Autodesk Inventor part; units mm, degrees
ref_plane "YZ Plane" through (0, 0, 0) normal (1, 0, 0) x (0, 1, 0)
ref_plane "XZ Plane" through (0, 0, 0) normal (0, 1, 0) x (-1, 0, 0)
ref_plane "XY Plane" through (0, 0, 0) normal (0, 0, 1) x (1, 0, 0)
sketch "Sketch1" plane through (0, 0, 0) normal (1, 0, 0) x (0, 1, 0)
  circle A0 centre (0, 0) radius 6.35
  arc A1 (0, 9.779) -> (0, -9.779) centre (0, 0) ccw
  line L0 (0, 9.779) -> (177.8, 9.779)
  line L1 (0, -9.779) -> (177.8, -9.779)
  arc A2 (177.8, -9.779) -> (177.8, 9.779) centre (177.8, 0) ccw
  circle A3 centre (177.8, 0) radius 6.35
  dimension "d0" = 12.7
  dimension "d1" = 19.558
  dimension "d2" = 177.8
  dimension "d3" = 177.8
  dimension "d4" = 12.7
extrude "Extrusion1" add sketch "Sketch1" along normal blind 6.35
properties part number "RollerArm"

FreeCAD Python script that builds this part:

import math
import FreeCAD as App
import Part
import Sketcher

V = App.Vector
Q = App.Units.Quantity

doc = App.newDocument("Part")
params = doc.addObject("Spreadsheet::Sheet", "Params")
for row, (alias, value) in enumerate([
    ("sketch1_diameter", "0.5 in"),
    ("sketch1_width", "7 in"),
    ("sketch1_radius", "0.385 in"),
    ("pad1_length", "0.25 in"),
], start=1):
    params.set(f"A{row}", alias)
    params.set(f"B{row}", "=" + value)
    params.setAlias(f"B{row}", alias)

body = doc.addObject("PartDesign::Body", "Body")

sketch1 = body.newObject("Sketcher::SketchObject", "Sketch")
sketch1.AttachmentSupport = (doc.getObject("YZ_Plane"), [""])
sketch1.MapMode = "FlatFace"
sketch1.addGeometry(Part.LineSegment(V(178, 10, 0), V(0, 10, 0)), False)
sketch1.addGeometry(Part.ArcOfCircle(Part.Circle(V(0, 0, 0), V(0, 0, 1), 10), math.radians(90), math.radians(270)), False)
sketch1.addGeometry(Part.LineSegment(V(0, -10, 0), V(178, -10, 0)), False)
sketch1.addGeometry(Part.ArcOfCircle(Part.Circle(V(178, 0, 0), V(0, 0, 1), 10), math.radians(-90), math.radians(90)), False)
sketch1.addGeometry(Part.Circle(V(0, 0, 0), V(0, 0, 1), 6), False)
sketch1.addGeometry(Part.Circle(V(178, 0, 0), V(0, 0, 1), 6), False)
sketch1.addConstraint(Sketcher.Constraint("Tangent", 0, 2, 1, 1))
sketch1.addConstraint(Sketcher.Constraint("Tangent", 1, 2, 2, 1))
sketch1.addConstraint(Sketcher.Constraint("Tangent", 2, 2, 3, 1))
sketch1.addConstraint(Sketcher.Constraint("Tangent", 3, 2, 0, 1))
sketch1.addConstraint(Sketcher.Constraint("Horizontal", 0))
sketch1.addConstraint(Sketcher.Constraint("Horizontal", 2))
sketch1.addConstraint(Sketcher.Constraint("Coincident", 1, 3, -1, 1))
sketch1.addConstraint(Sketcher.Constraint("Coincident", 4, 3, -1, 1))
sketch1.addConstraint(Sketcher.Constraint("Coincident", 5, 3, 3, 3))
sketch1.addConstraint(Sketcher.Constraint("Equal", 4, 5))
sketch1.addConstraint(Sketcher.Constraint("Diameter", 4, Q("0.5 in")))
sketch1.addConstraint(Sketcher.Constraint("DistanceX", 0, 2, 0, 1, Q("7 in")))
sketch1.addConstraint(Sketcher.Constraint("Radius", 1, Q("0.385 in")))
sketch1.setExpression("Constraints[10]", "Params.sketch1_diameter")
sketch1.setExpression("Constraints[11]", "Params.sketch1_width")
sketch1.setExpression("Constraints[12]", "Params.sketch1_radius")
pad1 = body.newObject("PartDesign::Pad", "Pad")
pad1.Profile = sketch1
pad1.setExpression("Length", "Params.pad1_length")

doc.recompute()
